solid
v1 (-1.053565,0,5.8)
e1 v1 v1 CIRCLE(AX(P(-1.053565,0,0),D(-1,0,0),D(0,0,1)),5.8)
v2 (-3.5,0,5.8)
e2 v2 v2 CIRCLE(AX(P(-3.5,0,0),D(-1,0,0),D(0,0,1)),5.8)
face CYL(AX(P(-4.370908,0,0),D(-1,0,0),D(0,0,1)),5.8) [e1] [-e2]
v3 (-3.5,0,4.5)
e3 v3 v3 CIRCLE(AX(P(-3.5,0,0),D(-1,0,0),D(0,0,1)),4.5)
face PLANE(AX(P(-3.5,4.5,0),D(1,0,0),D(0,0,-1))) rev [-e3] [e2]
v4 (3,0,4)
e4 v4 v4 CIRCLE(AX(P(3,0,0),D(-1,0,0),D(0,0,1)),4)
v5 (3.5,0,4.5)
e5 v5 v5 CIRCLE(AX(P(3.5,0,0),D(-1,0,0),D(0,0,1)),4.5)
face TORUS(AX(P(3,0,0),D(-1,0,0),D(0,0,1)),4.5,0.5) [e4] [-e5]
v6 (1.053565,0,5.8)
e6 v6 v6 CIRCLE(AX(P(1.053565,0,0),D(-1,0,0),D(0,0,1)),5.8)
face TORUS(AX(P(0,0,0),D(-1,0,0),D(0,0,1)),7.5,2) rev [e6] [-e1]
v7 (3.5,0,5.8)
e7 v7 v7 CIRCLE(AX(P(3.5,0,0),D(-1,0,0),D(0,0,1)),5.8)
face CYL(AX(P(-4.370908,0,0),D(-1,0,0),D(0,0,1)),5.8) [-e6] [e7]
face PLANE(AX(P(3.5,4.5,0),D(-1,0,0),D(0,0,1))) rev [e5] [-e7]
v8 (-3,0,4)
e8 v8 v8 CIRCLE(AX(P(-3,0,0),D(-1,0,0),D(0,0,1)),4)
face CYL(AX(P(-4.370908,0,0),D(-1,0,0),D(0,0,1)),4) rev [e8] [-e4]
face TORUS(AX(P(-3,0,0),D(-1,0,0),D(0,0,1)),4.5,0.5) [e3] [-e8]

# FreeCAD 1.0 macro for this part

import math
import FreeCAD as App
import Part
import Sketcher
Q = App.Units.Quantity

doc = App.newDocument("Part")
params = doc.addObject("Spreadsheet::Sheet", "Params")
for row, (alias, value) in enumerate([
    ("sketch1_radius", "2 mm"),
    ("sketch1_radius2", "0.5 mm"),
    ("sketch1_width", "6 mm"),
    ("sketch1_height", "1.3 mm"),
    ("revolution_angle", "360 deg"),
], start=1):
    params.set(f"A{row}", alias)
    params.set(f"B{row}", "=" + value)
    params.setAlias(f"B{row}", alias)

body = doc.addObject("PartDesign::Body", "Body")

sketch1 = body.newObject("Sketcher::SketchObject", "Sketch")
sketch1.AttachmentSupport = (doc.getObject("XY_Plane"), [""])
sketch1.MapMode = "FlatFace"
sketch1.addGeometry([
    Part.LineSegment(App.Vector(3.5, 4.5, 0), App.Vector(3.5, 5.8, 0)),
    Part.LineSegment(App.Vector(3.5, 5.8, 0), App.Vector(1.05, 5.8, 0)),
    Part.ArcOfCircle(Part.Circle(App.Vector(0, 7.5, 0), App.Vector(0, 0, 1), 2), math.radians(-122), math.radians(-58)),
    Part.LineSegment(App.Vector(-1.05, 5.8, 0), App.Vector(-3.5, 5.8, 0)),
    Part.LineSegment(App.Vector(-3.5, 5.8, 0), App.Vector(-3.5, 4.5, 0)),
    Part.ArcOfCircle(Part.Circle(App.Vector(-3, 4.5, 0), App.Vector(0, 0, 1), 0.5), math.radians(180), math.radians(270)),
    Part.LineSegment(App.Vector(-3, 4, 0), App.Vector(3, 4, 0)),
    Part.ArcOfCircle(Part.Circle(App.Vector(3, 4.5, 0), App.Vector(0, 0, 1), 0.5), math.radians(-90), math.radians(0)),
], False)
sketch1.addConstraint([
    Sketcher.Constraint("Coincident", 0, 2, 1, 1),
    Sketcher.Constraint("Coincident", 1, 2, 2, 2),
    Sketcher.Constraint("Coincident", 2, 1, 3, 1),
    Sketcher.Constraint("Coincident", 3, 2, 4, 1),
    Sketcher.Constraint("Tangent", 4, 2, 5, 1),
    Sketcher.Constraint("Tangent", 5, 2, 6, 1),
    Sketcher.Constraint("Tangent", 6, 2, 7, 1),
    Sketcher.Constraint("Tangent", 7, 2, 0, 1),
    Sketcher.Constraint("Vertical", 0),
    Sketcher.Constraint("Horizontal", 1),
    Sketcher.Constraint("Horizontal", 3),
    Sketcher.Constraint("Vertical", 4),
    Sketcher.Constraint("Horizontal", 6),
    Sketcher.Constraint("Equal", 5, 7),
    Sketcher.Constraint("Symmetric", 1, 2, 2, 1, -2),
    Sketcher.Constraint("Equal", 1, 3),
    Sketcher.Constraint("Radius", 2, Q("2 mm")),
    Sketcher.Constraint("Radius", 5, Q("0.5 mm")),
    Sketcher.Constraint("DistanceX", 6, 1, 6, 2, Q("6 mm")),
    Sketcher.Constraint("DistanceY", 0, 1, 0, 2, Q("1.3 mm")),
    Sketcher.Constraint("DistanceY", -1, 1, 5, 2, Q("4 mm")),
    Sketcher.Constraint("DistanceY", 5, 3, 2, 3, Q("3 mm")),
])
sketch1.setExpression("Constraints[16]", "Params.sketch1_radius")
sketch1.setExpression("Constraints[17]", "Params.sketch1_radius2")
sketch1.setExpression("Constraints[18]", "Params.sketch1_width")
sketch1.setExpression("Constraints[19]", "Params.sketch1_height")
revolution = body.newObject("PartDesign::Revolution", "Revolution")
revolution.Profile = sketch1
revolution.ReferenceAxis = (sketch1, ["H_Axis"])
revolution.setExpression("Angle", "Params.revolution_angle")

doc.recompute()
